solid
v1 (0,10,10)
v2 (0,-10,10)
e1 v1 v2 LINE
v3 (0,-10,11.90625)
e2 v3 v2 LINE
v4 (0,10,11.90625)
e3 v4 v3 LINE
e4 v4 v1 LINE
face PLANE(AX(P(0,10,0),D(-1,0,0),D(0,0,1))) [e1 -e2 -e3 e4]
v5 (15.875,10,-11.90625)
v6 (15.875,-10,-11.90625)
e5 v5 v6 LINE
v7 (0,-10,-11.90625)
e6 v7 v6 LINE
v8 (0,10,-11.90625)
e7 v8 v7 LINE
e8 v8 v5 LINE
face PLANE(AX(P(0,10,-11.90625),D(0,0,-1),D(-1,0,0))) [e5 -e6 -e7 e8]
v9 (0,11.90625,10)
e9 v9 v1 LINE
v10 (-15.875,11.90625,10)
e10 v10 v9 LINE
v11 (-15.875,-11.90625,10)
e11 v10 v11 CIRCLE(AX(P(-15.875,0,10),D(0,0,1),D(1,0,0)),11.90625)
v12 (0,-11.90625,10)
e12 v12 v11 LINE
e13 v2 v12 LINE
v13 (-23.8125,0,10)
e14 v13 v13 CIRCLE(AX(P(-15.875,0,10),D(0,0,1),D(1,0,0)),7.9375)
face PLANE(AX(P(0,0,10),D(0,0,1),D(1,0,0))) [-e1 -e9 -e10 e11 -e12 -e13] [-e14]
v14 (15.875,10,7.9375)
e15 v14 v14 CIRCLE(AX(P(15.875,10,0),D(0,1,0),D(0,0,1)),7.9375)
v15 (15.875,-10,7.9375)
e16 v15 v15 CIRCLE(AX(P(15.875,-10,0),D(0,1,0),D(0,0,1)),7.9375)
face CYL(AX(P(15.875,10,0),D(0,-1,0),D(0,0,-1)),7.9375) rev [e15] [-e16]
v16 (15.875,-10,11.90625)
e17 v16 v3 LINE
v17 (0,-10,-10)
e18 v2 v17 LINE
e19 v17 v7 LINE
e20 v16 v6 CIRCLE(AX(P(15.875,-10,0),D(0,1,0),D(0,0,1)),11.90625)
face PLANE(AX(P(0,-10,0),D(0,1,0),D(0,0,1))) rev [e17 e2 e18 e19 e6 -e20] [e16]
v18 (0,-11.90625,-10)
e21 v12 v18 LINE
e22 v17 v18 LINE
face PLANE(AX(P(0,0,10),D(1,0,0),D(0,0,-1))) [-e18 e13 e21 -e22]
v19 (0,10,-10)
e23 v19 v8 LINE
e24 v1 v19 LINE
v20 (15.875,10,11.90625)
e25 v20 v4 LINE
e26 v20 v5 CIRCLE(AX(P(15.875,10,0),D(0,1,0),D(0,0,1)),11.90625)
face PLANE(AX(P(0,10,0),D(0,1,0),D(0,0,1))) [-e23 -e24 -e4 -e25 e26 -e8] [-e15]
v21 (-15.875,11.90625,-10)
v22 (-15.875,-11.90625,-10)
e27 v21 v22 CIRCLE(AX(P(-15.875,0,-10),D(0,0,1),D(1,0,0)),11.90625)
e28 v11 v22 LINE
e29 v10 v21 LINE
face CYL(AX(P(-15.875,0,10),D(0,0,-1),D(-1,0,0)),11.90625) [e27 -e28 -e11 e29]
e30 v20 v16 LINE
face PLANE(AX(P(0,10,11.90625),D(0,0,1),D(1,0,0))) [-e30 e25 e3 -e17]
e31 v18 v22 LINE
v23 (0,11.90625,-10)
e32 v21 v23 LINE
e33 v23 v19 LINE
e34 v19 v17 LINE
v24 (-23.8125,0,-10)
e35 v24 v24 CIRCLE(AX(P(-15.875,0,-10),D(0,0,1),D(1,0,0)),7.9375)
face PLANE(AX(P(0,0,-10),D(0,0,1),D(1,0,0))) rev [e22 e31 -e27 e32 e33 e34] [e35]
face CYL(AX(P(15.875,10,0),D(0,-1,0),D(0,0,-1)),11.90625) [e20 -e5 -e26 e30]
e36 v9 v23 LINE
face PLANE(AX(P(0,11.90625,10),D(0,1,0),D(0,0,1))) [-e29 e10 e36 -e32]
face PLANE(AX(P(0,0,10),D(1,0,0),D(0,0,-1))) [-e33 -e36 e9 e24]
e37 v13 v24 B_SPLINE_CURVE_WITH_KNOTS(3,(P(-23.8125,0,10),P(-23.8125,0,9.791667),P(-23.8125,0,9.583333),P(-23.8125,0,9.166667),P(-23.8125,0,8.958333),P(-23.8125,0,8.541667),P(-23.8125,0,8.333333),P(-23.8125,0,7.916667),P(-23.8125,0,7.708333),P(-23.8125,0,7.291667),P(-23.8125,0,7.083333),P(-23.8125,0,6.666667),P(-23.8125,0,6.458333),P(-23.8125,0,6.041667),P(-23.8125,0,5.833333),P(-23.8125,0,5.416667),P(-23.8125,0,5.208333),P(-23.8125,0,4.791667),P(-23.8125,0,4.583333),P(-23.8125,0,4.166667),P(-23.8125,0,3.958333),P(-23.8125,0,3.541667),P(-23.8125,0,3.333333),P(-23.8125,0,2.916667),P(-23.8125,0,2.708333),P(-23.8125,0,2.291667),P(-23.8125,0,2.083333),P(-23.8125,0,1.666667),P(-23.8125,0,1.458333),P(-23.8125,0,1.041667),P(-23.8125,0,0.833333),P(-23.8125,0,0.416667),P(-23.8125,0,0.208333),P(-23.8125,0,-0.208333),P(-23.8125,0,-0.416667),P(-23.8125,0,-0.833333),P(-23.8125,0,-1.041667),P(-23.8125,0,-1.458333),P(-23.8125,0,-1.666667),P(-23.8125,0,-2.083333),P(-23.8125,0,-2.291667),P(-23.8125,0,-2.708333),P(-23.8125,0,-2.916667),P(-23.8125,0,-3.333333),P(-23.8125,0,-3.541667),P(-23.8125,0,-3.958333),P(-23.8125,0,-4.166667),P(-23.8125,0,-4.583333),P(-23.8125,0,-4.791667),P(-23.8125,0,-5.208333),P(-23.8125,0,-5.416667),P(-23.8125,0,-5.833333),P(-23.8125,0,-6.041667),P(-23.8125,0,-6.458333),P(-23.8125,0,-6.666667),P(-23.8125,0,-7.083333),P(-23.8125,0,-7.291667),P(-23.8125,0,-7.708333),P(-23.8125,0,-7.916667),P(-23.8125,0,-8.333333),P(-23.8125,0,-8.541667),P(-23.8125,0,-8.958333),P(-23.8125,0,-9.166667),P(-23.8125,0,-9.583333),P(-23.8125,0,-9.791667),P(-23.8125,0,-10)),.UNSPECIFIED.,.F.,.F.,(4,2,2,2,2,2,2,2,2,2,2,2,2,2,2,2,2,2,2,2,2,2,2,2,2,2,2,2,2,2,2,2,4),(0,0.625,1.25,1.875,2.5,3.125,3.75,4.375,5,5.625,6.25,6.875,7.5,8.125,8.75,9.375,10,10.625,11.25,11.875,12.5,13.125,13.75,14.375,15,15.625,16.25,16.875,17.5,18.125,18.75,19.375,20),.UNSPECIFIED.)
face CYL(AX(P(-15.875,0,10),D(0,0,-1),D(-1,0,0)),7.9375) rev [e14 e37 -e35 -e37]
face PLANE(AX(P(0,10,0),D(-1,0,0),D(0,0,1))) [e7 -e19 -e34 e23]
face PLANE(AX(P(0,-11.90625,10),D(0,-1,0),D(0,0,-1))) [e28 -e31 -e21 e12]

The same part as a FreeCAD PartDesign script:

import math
import FreeCAD as App
import Part
import Sketcher
from FreeCAD import Vector
Q = App.Units.Quantity

doc = App.newDocument("Part")
body = doc.addObject("PartDesign::Body", "Body")

# Sketch on XY plane
sketch1 = body.newObject("Sketcher::SketchObject", "Sketch")
sketch1.AttachmentSupport = (doc.getObject("XY_Plane"), [""])
sketch1.MapMode = "FlatFace"
sketch1.addGeometry(Part.LineSegment(Vector(0, -12, 0), Vector(0, 12, 0)), False)
sketch1.addGeometry(Part.LineSegment(Vector(0, 12, 0), Vector(-16, 12, 0)), False)
sketch1.addGeometry(Part.ArcOfCircle(Part.Circle(Vector(-16, 0, 0), Vector(0, 0, 1), 12), math.radians(90), math.radians(270)), False)
sketch1.addGeometry(Part.LineSegment(Vector(-16, -12, 0), Vector(0, -12, 0)), False)
sketch1.addGeometry(Part.Circle(Vector(-16, 0, 0), Vector(0, 0, 1), 8), False)
sketch1.addConstraint(Sketcher.Constraint("Coincident", 0, 2, 1, 1))
sketch1.addConstraint(Sketcher.Constraint("Tangent", 1, 2, 2, 1))
sketch1.addConstraint(Sketcher.Constraint("Tangent", 2, 2, 3, 1))
sketch1.addConstraint(Sketcher.Constraint("Coincident", 3, 2, 0, 1))
sketch1.addConstraint(Sketcher.Constraint("Vertical", 0))
sketch1.addConstraint(Sketcher.Constraint("Horizontal", 1))
sketch1.addConstraint(Sketcher.Constraint("Horizontal", 3))
sketch1.addConstraint(Sketcher.Constraint("Coincident", 4, 3, 2, 3))
sketch1.addConstraint(Sketcher.Constraint("Symmetric", 0, 2, 3, 2, -1, 1))
sketch1.addConstraint(Sketcher.Constraint("Diameter", 4, Q("0.625 in")))
sketch1.addConstraint(Sketcher.Constraint("Radius", 2, Q("0.46875 in")))
sketch1.addConstraint(Sketcher.Constraint("DistanceX", 1, 2, 1, 1, Q("0.625 in")))
pad1 = body.newObject("PartDesign::Pad", "Pad")
pad1.Profile = sketch1
pad1.Length = 20
pad1.Midplane = True

# Sketch on XZ plane
sketch2 = body.newObject("Sketcher::SketchObject", "Sketch001")
sketch2.AttachmentSupport = (doc.getObject("XZ_Plane"), [""])
sketch2.MapMode = "FlatFace"
sketch2.addGeometry(Part.LineSegment(Vector(16, -12, 0), Vector(0, -12, 0)), False)
sketch2.addGeometry(Part.LineSegment(Vector(0, -12, 0), Vector(0, 12, 0)), False)
sketch2.addGeometry(Part.LineSegment(Vector(0, 12, 0), Vector(16, 12, 0)), False)
sketch2.addGeometry(Part.ArcOfCircle(Part.Circle(Vector(16, 0, 0), Vector(0, 0, 1), 12), math.radians(-90), math.radians(90)), False)
sketch2.addGeometry(Part.Circle(Vector(16, 0, 0), Vector(0, 0, 1), 8), False)
sketch2.addConstraint(Sketcher.Constraint("Coincident", 0, 2, 1, 1))
sketch2.addConstraint(Sketcher.Constraint("Coincident", 1, 2, 2, 1))
sketch2.addConstraint(Sketcher.Constraint("Tangent", 2, 2, 3, 2))
sketch2.addConstraint(Sketcher.Constraint("Tangent", 3, 1, 0, 1))
sketch2.addConstraint(Sketcher.Constraint("Horizontal", 0))
sketch2.addConstraint(Sketcher.Constraint("Vertical", 1))
sketch2.addConstraint(Sketcher.Constraint("Horizontal", 2))
sketch2.addConstraint(Sketcher.Constraint("Coincident", 4, 3, 3, 3))
sketch2.addConstraint(Sketcher.Constraint("Symmetric", 0, 2, 1, 2, -1, 1))
sketch2.addConstraint(Sketcher.Constraint("Diameter", 4, Q("0.625 in")))
sketch2.addConstraint(Sketcher.Constraint("Radius", 3, Q("0.46875 in")))
sketch2.addConstraint(Sketcher.Constraint("DistanceX", 0, 2, 0, 1, Q("0.625 in")))
pad2 = body.newObject("PartDesign::Pad", "Pad001")
pad2.Profile = sketch2
pad2.Length = 20
pad2.Midplane = True

doc.recompute()
